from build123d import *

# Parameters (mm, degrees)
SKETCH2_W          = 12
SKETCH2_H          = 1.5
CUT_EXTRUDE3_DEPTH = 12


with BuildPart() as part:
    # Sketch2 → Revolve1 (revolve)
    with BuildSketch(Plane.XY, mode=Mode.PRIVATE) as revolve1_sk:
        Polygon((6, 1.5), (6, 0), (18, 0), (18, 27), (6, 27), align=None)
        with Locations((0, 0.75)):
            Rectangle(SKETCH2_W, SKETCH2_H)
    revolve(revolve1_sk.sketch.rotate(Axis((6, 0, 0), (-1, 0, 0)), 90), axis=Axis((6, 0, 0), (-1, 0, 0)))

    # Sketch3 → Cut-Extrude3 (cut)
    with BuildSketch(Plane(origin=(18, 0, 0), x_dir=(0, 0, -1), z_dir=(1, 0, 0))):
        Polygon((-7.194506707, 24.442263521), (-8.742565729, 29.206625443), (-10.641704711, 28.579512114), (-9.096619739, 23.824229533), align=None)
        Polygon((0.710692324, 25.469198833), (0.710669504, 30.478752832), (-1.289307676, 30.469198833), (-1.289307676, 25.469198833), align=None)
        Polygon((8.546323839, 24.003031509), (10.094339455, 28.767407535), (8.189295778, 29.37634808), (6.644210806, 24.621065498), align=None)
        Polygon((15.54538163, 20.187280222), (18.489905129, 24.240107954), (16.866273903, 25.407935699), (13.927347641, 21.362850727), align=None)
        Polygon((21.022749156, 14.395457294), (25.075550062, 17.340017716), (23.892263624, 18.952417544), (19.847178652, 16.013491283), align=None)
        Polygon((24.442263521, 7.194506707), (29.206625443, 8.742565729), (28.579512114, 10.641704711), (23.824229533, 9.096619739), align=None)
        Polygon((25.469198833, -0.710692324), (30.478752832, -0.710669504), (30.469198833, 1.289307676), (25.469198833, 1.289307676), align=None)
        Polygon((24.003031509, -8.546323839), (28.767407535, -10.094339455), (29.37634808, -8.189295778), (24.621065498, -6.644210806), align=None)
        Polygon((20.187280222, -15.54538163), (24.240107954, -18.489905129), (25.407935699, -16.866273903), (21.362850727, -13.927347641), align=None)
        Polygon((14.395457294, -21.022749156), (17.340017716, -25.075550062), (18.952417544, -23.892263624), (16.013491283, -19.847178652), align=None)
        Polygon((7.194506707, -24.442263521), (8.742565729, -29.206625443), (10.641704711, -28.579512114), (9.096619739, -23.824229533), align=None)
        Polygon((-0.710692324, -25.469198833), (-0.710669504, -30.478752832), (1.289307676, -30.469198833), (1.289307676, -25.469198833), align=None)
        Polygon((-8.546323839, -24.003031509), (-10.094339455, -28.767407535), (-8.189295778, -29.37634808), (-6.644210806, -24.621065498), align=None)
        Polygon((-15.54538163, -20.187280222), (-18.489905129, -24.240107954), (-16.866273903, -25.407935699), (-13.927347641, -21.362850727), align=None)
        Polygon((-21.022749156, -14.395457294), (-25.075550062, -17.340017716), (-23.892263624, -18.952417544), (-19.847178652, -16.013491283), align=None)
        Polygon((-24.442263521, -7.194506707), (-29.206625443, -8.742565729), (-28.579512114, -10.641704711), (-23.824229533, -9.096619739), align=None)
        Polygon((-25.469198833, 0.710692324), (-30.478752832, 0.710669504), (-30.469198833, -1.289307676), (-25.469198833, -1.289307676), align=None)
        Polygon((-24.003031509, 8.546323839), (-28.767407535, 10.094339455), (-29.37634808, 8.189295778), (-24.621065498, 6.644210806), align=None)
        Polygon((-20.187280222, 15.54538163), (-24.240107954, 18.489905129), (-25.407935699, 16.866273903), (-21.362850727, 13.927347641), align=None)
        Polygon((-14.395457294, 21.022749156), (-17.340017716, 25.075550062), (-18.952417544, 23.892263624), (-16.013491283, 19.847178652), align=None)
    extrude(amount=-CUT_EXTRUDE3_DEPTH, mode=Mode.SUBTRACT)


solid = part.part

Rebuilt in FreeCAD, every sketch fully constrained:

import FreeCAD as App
import Part
import Sketcher
from FreeCAD import Vector
Q = App.Units.Quantity


def add_polygon(sketch, points):
    """Adds a closed chain of lines whose ends are joined by coincident constraints."""
    first, n = sketch.GeometryCount, len(points)
    for a, b in zip(points, points[1:] + points[:1]):
        sketch.addGeometry(Part.LineSegment(App.Vector(*a, 0), App.Vector(*b, 0)), False)
    for i in range(n):
        sketch.addConstraint(Sketcher.Constraint("Coincident", first + i, 2, first + (i + 1) % n, 1))

doc = App.newDocument("Part")
params = doc.addObject("Spreadsheet::Sheet", "Params")
for row, (alias, value) in enumerate([
    ("sketch1_width", "12 mm"),
    ("sketch1_height", "27 mm"),
    ("sketch1_height2", "25.5 mm"),
    ("revolution_angle", "360 deg"),
    ("sketch2_width", "5 mm"),
    ("sketch2_width2", "2 mm"),
    ("sketch2_length", "2 mm"),
    ("sketch2_length2", "5 mm"),
    ("pocket1_length", "12 mm"),
], start=1):
    params.set(f"A{row}", alias)
    params.set(f"B{row}", "=" + value)
    params.setAlias(f"B{row}", alias)

body = doc.addObject("PartDesign::Body", "Body")

sketch1 = body.newObject("Sketcher::SketchObject", "Sketch")
sketch1.AttachmentSupport = (doc.getObject("XY_Plane"), [""])
sketch1.MapMode = "FlatFace"
add_polygon(sketch1, [(18, 0), (18, 27), (6, 27), (6, 1.5), (-6, 1.5), (-6, 0)])
sketch1.addConstraint(Sketcher.Constraint("Vertical", 0))
sketch1.addConstraint(Sketcher.Constraint("Horizontal", 1))
sketch1.addConstraint(Sketcher.Constraint("Vertical", 2))
sketch1.addConstraint(Sketcher.Constraint("Horizontal", 3))
sketch1.addConstraint(Sketcher.Constraint("Vertical", 4))
sketch1.addConstraint(Sketcher.Constraint("Horizontal", 5))
sketch1.addConstraint(Sketcher.Constraint("PointOnObject", 4, 2, -1))
sketch1.addConstraint(Sketcher.Constraint("Equal", 1, 3))
sketch1.addConstraint(Sketcher.Constraint("DistanceX", 1, 2, 1, 1, 12.0))
sketch1.addConstraint(Sketcher.Constraint("DistanceY", 0, 1, 0, 2, 27.0))
sketch1.addConstraint(Sketcher.Constraint("DistanceY", 2, 2, 2, 1, 25.5))
sketch1.addConstraint(Sketcher.Constraint("DistanceX", -1, 1, 0, 2, 18.0))
sketch1.setExpression("Constraints[14]", "Params.sketch1_width")
sketch1.setExpression("Constraints[15]", "Params.sketch1_height")
sketch1.setExpression("Constraints[16]", "Params.sketch1_height2")
revolution = body.newObject("PartDesign::Revolution", "Revolution")
revolution.Profile = sketch1
revolution.ReferenceAxis = (sketch1, ["H_Axis"])
revolution.setExpression("Angle", "Params.revolution_angle")

sketch2 = body.newObject("Sketcher::SketchObject", "Sketch001")
sketch2.AttachmentSupport = (doc.getObject("YZ_Plane"), [""])
sketch2.MapMode = "FlatFace"
sketch2.AttachmentOffset = App.Placement(Vector(0, 0, 18), App.Rotation())
add_polygon(sketch2, [(24.4, 7.2), (29.2, 8.7), (28.6, 10.6), (23.8, 9.1)])
add_polygon(sketch2, [(25.5, -0.7), (30.5, -0.7), (30.5, 1.3), (25.5, 1.3)])
add_polygon(sketch2, [(24, -8.5), (28.8, -10.1), (29.4, -8.2), (24.6, -6.6)])
add_polygon(sketch2, [(20.2, -15.5), (24.2, -18.5), (25.4, -16.9), (21.4, -13.9)])
add_polygon(sketch2, [(14.4, -21), (17.3, -25.1), (19, -23.9), (16, -19.8)])
add_polygon(sketch2, [(7.2, -24.4), (8.7, -29.2), (10.6, -28.6), (9.1, -23.8)])
add_polygon(sketch2, [(-0.7, -25.5), (-0.7, -30.5), (1.3, -30.5), (1.3, -25.5)])
add_polygon(sketch2, [(-8.5, -24), (-10.1, -28.8), (-8.2, -29.4), (-6.6, -24.6)])
add_polygon(sketch2, [(-15.5, -20.2), (-18.5, -24.2), (-16.9, -25.4), (-13.9, -21.4)])
add_polygon(sketch2, [(-21, -14.4), (-25.1, -17.3), (-23.9, -19), (-19.8, -16)])
add_polygon(sketch2, [(-24.4, -7.2), (-29.2, -8.7), (-28.6, -10.6), (-23.8, -9.1)])
add_polygon(sketch2, [(-25.5, 0.7), (-30.5, 0.7), (-30.5, -1.3), (-25.5, -1.3)])
add_polygon(sketch2, [(-24, 8.5), (-28.8, 10.1), (-29.4, 8.2), (-24.6, 6.6)])
add_polygon(sketch2, [(-20.2, 15.5), (-24.2, 18.5), (-25.4, 16.9), (-21.4, 13.9)])
add_polygon(sketch2, [(-14.4, 21), (-17.3, 25.1), (-19, 23.9), (-16, 19.8)])
add_polygon(sketch2, [(-7.2, 24.4), (-8.7, 29.2), (-10.6, 28.6), (-9.1, 23.8)])
add_polygon(sketch2, [(0.7, 25.5), (0.7, 30.5), (-1.3, 30.5), (-1.3, 25.5)])
add_polygon(sketch2, [(8.5, 24), (10.1, 28.8), (8.2, 29.4), (6.6, 24.6)])
add_polygon(sketch2, [(15.5, 20.2), (18.5, 24.2), (16.9, 25.4), (13.9, 21.4)])
add_polygon(sketch2, [(21, 14.4), (25.1, 17.3), (23.9, 19), (19.8, 16)])
sketch2.addConstraint(Sketcher.Constraint("Horizontal", 6))
sketch2.addConstraint(Sketcher.Constraint("Vertical", 7))
sketch2.addConstraint(Sketcher.Constraint("Vertical", 26))
sketch2.addConstraint(Sketcher.Constraint("Horizontal", 27))
sketch2.addConstraint(Sketcher.Constraint("Horizontal", 46))
sketch2.addConstraint(Sketcher.Constraint("Vertical", 47))
sketch2.addConstraint(Sketcher.Constraint("Vertical", 66))
sketch2.addConstraint(Sketcher.Constraint("Horizontal", 67))
sketch2.addConstraint(Sketcher.Constraint("Symmetric", 0, 2, 40, 2, -1, 1))
sketch2.addConstraint(Sketcher.Constraint("Symmetric", 1, 2, 41, 2, -1, 1))
sketch2.addConstraint(Sketcher.Constraint("Symmetric", 2, 2, 42, 2, -1, 1))
sketch2.addConstraint(Sketcher.Constraint("Symmetric", 3, 2, 43, 2, -1, 1))
sketch2.addConstraint(Sketcher.Constraint("Symmetric", 4, 2, 44, 2, -1, 1))
sketch2.addConstraint(Sketcher.Constraint("Symmetric", 5, 2, 45, 2, -1, 1))
sketch2.addConstraint(Sketcher.Constraint("Symmetric", 7, 2, 47, 2, -1, 1))
sketch2.addConstraint(Sketcher.Constraint("Symmetric", 8, 2, 48, 2, -1, 1))
sketch2.addConstraint(Sketcher.Constraint("Symmetric", 9, 2, 49, 2, -1, 1))
sketch2.addConstraint(Sketcher.Constraint("Symmetric", 10, 2, 50, 2, -1, 1))
sketch2.addConstraint(Sketcher.Constraint("Symmetric", 11, 2, 51, 2, -1, 1))
sketch2.addConstraint(Sketcher.Constraint("Symmetric", 12, 2, 52, 2, -1, 1))
sketch2.addConstraint(Sketcher.Constraint("Symmetric", 13, 2, 53, 2, -1, 1))
sketch2.addConstraint(Sketcher.Constraint("Symmetric", 14, 2, 54, 2, -1, 1))
sketch2.addConstraint(Sketcher.Constraint("Symmetric", 15, 2, 55, 2, -1, 1))
sketch2.addConstraint(Sketcher.Constraint("Symmetric", 16, 2, 56, 2, -1, 1))
sketch2.addConstraint(Sketcher.Constraint("Symmetric", 17, 2, 57, 2, -1, 1))
sketch2.addConstraint(Sketcher.Constraint("Symmetric", 18, 2, 58, 2, -1, 1))
sketch2.addConstraint(Sketcher.Constraint("Symmetric", 19, 2, 59, 2, -1, 1))
sketch2.addConstraint(Sketcher.Constraint("Symmetric", 20, 2, 60, 2, -1, 1))
sketch2.addConstraint(Sketcher.Constraint("Symmetric", 21, 2, 61, 2, -1, 1))
sketch2.addConstraint(Sketcher.Constraint("Symmetric", 22, 2, 62, 2, -1, 1))
sketch2.addConstraint(Sketcher.Constraint("Symmetric", 23, 2, 63, 2, -1, 1))
sketch2.addConstraint(Sketcher.Constraint("Symmetric", 24, 2, 64, 2, -1, 1))
sketch2.addConstraint(Sketcher.Constraint("Symmetric", 25, 2, 65, 2, -1, 1))
sketch2.addConstraint(Sketcher.Constraint("Symmetric", 27, 2, 67, 2, -1, 1))
sketch2.addConstraint(Sketcher.Constraint("Symmetric", 28, 2, 68, 2, -1, 1))
sketch2.addConstraint(Sketcher.Constraint("Symmetric", 29, 2, 69, 2, -1, 1))
sketch2.addConstraint(Sketcher.Constraint("Symmetric", 30, 2, 70, 2, -1, 1))
sketch2.addConstraint(Sketcher.Constraint("Symmetric", 31, 2, 71, 2, -1, 1))
sketch2.addConstraint(Sketcher.Constraint("Symmetric", 32, 2, 72, 2, -1, 1))
sketch2.addConstraint(Sketcher.Constraint("Symmetric", 33, 2, 73, 2, -1, 1))
sketch2.addConstraint(Sketcher.Constraint("Symmetric", 34, 2, 74, 2, -1, 1))
sketch2.addConstraint(Sketcher.Constraint("Symmetric", 35, 2, 75, 2, -1, 1))
sketch2.addConstraint(Sketcher.Constraint("Symmetric", 36, 2, 76, 2, -1, 1))
sketch2.addConstraint(Sketcher.Constraint("Symmetric", 37, 2, 77, 2, -1, 1))
sketch2.addConstraint(Sketcher.Constraint("Symmetric", 38, 2, 78, 2, -1, 1))
sketch2.addConstraint(Sketcher.Constraint("Symmetric", 39, 2, 79, 2, -1, 1))
sketch2.addConstraint(Sketcher.Constraint("Perpendicular", 2, 3))
sketch2.addConstraint(Sketcher.Constraint("Perpendicular", 10, 11))
sketch2.addConstraint(Sketcher.Constraint("Perpendicular", 14, 15))
sketch2.addConstraint(Sketcher.Constraint("Perpendicular", 18, 19))
sketch2.addConstraint(Sketcher.Constraint("Perpendicular", 0, 20))
sketch2.addConstraint(Sketcher.Constraint("Perpendicular", 1, 21))
sketch2.addConstraint(Sketcher.Constraint("Parallel", 3, 22))
sketch2.addConstraint(Sketcher.Constraint("Perpendicular", 22, 23))
sketch2.addConstraint(Sketcher.Constraint("Perpendicular", 4, 24))
sketch2.addConstraint(Sketcher.Constraint("Perpendicular", 5, 25))
sketch2.addConstraint(Sketcher.Constraint("Perpendicular", 8, 28))
sketch2.addConstraint(Sketcher.Constraint("Perpendicular", 9, 29))
sketch2.addConstraint(Sketcher.Constraint("Parallel", 11, 30))
sketch2.addConstraint(Sketcher.Constraint("Perpendicular", 30, 31))
sketch2.addConstraint(Sketcher.Constraint("Perpendicular", 12, 32))
sketch2.addConstraint(Sketcher.Constraint("Perpendicular", 13, 33))
sketch2.addConstraint(Sketcher.Constraint("Parallel", 15, 34))
sketch2.addConstraint(Sketcher.Constraint("Perpendicular", 34, 35))
sketch2.addConstraint(Sketcher.Constraint("Perpendicular", 16, 36))
sketch2.addConstraint(Sketcher.Constraint("Perpendicular", 17, 37))
sketch2.addConstraint(Sketcher.Constraint("Parallel", 19, 38))
sketch2.addConstraint(Sketcher.Constraint("Perpendicular", 38, 39))
sketch2.addConstraint(Sketcher.Constraint("Equal", 67, 7))
sketch2.addConstraint(Sketcher.Constraint("Equal", 46, 26))
sketch2.addConstraint(Sketcher.Constraint("Equal", 1, 3))
sketch2.addConstraint(Sketcher.Constraint("Equal", 0, 4))
sketch2.addConstraint(Sketcher.Constraint("Equal", 3, 5))
sketch2.addConstraint(Sketcher.Constraint("Equal", 4, 8))
sketch2.addConstraint(Sketcher.Constraint("Equal", 5, 9))
sketch2.addConstraint(Sketcher.Constraint("Equal", 2, 10))
sketch2.addConstraint(Sketcher.Constraint("Equal", 9, 11))
sketch2.addConstraint(Sketcher.Constraint("Equal", 8, 12))
sketch2.addConstraint(Sketcher.Constraint("Equal", 11, 13))
sketch2.addConstraint(Sketcher.Constraint("Equal", 10, 14))
sketch2.addConstraint(Sketcher.Constraint("Equal", 13, 15))
sketch2.addConstraint(Sketcher.Constraint("Equal", 12, 16))
sketch2.addConstraint(Sketcher.Constraint("Equal", 15, 17))
sketch2.addConstraint(Sketcher.Constraint("Equal", 14, 18))
sketch2.addConstraint(Sketcher.Constraint("Equal", 17, 19))
sketch2.addConstraint(Sketcher.Constraint("Equal", 16, 20))
sketch2.addConstraint(Sketcher.Constraint("Equal", 19, 21))
sketch2.addConstraint(Sketcher.Constraint("Equal", 24, 28))
sketch2.addConstraint(Sketcher.Constraint("Equal", 25, 29))
sketch2.addConstraint(Sketcher.Constraint("Equal", 28, 32))
sketch2.addConstraint(Sketcher.Constraint("Equal", 31, 33))
sketch2.addConstraint(Sketcher.Constraint("Equal", 32, 36))
sketch2.addConstraint(Sketcher.Constraint("Equal", 35, 37))
sketch2.addConstraint(Sketcher.Constraint("DistanceX", 6, 2, 6, 1, 5.0))
sketch2.addConstraint(Sketcher.Constraint("DistanceX", 27, 2, 27, 1, 2.0))
sketch2.addConstraint(Sketcher.Constraint("Angle", 2, Q("-162 deg")))
sketch2.addConstraint(Sketcher.Constraint("Angle", 10, Q("162 deg")))
sketch2.addConstraint(Sketcher.Constraint("Angle", 14, Q("144 deg")))
sketch2.addConstraint(Sketcher.Constraint("Angle", 18, Q("126 deg")))
sketch2.addConstraint(Sketcher.Constraint("Distance", 1, 2.0))
sketch2.addConstraint(Sketcher.Constraint("Distance", 2, 5.0))
sketch2.addConstraint(Sketcher.Constraint("DistanceX", -1, 1, 5, 2, 30.469199))
sketch2.addConstraint(Sketcher.Constraint("DistanceY", 25, 2, -1, 1, 30.469199))
sketch2.addConstraint(Sketcher.Constraint("DistanceX", -1, 1, 2, 2, 23.82423))
sketch2.addConstraint(Sketcher.Constraint("DistanceY", -1, 1, 2, 2, 9.09662))
sketch2.addConstraint(Sketcher.Constraint("DistanceY", 4, 2, -1, 1, 0.71067))
sketch2.addConstraint(Sketcher.Constraint("DistanceY", 8, 2, -1, 1, 10.094339))
sketch2.addConstraint(Sketcher.Constraint("DistanceX", -1, 1, 9, 2, 29.376348))
sketch2.addConstraint(Sketcher.Constraint("DistanceY", 10, 2, -1, 1, 6.644211))
sketch2.addConstraint(Sketcher.Constraint("DistanceX", -1, 1, 14, 2, 21.362851))
sketch2.addConstraint(Sketcher.Constraint("DistanceY", 15, 2, -1, 1, 15.545382))
sketch2.addConstraint(Sketcher.Constraint("DistanceY", 16, 2, -1, 1, 25.07555))
sketch2.addConstraint(Sketcher.Constraint("DistanceX", -1, 1, 18, 2, 16.013491))
sketch2.addConstraint(Sketcher.Constraint("DistanceX", -1, 1, 22, 2, 9.09662))
sketch2.addConstraint(Sketcher.Constraint("DistanceY", 22, 2, -1, 1, 23.82423))
sketch2.addConstraint(Sketcher.Constraint("DistanceX", 24, 2, -1, 1, 0.71067))
sketch2.addConstraint(Sketcher.Constraint("DistanceX", 28, 2, -1, 1, 10.094339))
sketch2.addConstraint(Sketcher.Constraint("DistanceY", 29, 2, -1, 1, 29.376348))
sketch2.addConstraint(Sketcher.Constraint("DistanceY", 34, 2, -1, 1, 21.362851))
sketch2.addConstraint(Sketcher.Constraint("DistanceX", 35, 2, -1, 1, 15.545382))
sketch2.addConstraint(Sketcher.Constraint("DistanceX", 36, 2, -1, 1, 25.07555))
sketch2.addConstraint(Sketcher.Constraint("DistanceY", 38, 2, -1, 1, 16.013491))
sketch2.setExpression("Constraints[173]", "Params.sketch2_width")
sketch2.setExpression("Constraints[174]", "Params.sketch2_width2")
sketch2.setExpression("Constraints[179]", "Params.sketch2_length")
sketch2.setExpression("Constraints[180]", "Params.sketch2_length2")
pocket1 = body.newObject("PartDesign::Pocket", "Pocket")
pocket1.Profile = sketch2
pocket1.setExpression("Length", "Params.pocket1_length")

doc.recompute()
